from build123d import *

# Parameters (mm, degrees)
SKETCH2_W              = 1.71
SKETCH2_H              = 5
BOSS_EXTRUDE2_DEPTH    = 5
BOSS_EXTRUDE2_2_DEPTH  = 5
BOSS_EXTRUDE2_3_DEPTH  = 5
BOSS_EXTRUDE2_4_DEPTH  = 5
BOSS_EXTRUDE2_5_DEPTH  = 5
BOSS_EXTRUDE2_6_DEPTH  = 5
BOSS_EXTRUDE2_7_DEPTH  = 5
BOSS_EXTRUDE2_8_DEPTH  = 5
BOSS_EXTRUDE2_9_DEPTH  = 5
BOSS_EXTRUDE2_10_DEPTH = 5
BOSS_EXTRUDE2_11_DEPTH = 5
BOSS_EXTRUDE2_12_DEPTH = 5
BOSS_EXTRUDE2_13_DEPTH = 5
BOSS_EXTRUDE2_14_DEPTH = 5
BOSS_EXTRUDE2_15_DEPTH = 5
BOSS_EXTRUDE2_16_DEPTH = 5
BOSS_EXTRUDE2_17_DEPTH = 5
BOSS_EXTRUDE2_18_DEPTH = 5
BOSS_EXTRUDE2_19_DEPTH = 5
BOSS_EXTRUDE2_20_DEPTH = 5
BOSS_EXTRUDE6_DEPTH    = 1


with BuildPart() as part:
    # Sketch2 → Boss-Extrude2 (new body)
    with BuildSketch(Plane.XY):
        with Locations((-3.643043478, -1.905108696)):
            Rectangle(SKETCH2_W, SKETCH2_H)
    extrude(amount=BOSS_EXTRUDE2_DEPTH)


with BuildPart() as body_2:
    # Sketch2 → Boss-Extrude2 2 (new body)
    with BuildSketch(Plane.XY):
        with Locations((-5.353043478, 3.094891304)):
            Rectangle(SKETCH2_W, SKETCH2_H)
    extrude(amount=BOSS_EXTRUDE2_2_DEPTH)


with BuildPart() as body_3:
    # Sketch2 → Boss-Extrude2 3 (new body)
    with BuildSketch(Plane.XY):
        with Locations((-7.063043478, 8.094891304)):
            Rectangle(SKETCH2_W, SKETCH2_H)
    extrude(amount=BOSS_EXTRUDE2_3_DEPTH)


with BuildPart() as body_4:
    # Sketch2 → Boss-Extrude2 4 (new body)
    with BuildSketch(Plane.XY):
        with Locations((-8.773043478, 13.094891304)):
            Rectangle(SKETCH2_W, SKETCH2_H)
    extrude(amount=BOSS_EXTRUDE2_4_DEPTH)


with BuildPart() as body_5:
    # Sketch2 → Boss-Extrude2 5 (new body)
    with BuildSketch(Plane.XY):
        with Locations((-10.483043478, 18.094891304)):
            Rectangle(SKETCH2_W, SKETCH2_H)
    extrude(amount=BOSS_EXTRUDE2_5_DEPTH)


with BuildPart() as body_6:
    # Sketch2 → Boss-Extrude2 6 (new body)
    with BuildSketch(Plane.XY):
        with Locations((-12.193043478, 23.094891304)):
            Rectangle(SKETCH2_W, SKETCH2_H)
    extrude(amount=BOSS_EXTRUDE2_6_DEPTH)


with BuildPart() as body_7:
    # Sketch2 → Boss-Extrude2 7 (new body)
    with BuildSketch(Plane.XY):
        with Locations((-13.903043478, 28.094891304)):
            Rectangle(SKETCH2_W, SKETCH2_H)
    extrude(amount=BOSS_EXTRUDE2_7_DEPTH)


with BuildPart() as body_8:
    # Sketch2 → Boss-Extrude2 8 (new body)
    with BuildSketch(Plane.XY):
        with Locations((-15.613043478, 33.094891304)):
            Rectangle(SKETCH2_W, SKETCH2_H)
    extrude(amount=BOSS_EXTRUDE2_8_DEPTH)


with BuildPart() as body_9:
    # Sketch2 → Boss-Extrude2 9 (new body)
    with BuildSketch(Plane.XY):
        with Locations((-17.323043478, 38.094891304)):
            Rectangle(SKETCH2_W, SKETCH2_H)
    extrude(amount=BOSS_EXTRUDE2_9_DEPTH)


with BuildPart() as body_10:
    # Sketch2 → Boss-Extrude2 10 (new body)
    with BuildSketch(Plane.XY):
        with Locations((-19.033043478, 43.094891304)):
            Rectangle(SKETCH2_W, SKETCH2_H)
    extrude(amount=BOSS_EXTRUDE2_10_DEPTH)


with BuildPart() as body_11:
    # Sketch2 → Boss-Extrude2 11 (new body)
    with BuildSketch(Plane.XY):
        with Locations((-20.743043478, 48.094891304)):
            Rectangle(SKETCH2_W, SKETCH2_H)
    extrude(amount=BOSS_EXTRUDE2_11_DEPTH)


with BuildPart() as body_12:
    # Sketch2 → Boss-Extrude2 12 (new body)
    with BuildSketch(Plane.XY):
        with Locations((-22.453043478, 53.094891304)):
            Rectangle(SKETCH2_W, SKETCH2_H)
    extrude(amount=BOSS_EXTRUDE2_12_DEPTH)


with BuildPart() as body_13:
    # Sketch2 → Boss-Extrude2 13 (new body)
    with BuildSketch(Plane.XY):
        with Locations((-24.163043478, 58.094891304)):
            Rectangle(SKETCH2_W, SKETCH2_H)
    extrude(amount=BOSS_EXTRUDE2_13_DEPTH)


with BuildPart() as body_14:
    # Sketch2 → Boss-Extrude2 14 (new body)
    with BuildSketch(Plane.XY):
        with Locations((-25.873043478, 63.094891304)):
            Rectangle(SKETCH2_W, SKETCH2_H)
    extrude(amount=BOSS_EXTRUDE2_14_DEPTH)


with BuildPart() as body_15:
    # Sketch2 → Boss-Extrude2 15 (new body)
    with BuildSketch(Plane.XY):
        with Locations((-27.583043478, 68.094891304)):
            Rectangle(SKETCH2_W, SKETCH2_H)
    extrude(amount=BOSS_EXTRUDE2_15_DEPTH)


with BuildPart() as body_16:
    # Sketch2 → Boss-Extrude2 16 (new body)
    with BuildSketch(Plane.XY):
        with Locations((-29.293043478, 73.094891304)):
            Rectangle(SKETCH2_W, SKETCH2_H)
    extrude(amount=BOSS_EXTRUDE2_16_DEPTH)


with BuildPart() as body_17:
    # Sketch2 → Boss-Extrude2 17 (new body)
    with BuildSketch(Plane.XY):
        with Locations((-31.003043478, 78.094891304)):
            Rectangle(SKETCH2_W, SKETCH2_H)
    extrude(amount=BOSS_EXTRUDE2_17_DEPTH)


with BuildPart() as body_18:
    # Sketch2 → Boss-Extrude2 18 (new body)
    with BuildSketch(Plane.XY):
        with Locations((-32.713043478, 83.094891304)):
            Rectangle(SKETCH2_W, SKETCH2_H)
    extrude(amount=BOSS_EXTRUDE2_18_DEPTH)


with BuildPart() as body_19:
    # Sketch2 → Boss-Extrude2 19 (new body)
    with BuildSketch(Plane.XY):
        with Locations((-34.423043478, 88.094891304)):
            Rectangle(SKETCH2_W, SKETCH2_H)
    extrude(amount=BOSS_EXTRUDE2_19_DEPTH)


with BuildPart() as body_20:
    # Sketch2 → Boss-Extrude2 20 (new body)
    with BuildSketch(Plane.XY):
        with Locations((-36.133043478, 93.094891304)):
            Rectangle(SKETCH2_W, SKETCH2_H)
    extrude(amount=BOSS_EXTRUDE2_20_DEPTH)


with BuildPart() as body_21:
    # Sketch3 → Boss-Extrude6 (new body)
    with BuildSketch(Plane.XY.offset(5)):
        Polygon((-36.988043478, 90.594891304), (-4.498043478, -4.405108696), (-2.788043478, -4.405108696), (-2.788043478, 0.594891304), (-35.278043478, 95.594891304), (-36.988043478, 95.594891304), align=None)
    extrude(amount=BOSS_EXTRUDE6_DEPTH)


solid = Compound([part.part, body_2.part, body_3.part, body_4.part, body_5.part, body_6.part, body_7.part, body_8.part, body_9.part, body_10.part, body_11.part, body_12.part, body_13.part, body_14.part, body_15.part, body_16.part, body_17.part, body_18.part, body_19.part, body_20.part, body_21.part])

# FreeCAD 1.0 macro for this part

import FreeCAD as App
import Part
import Sketcher
from FreeCAD import Vector
Q = App.Units.Quantity

doc = App.newDocument("Part")
body = doc.addObject("PartDesign::Body", "Body")

sketch1 = body.newObject("Sketcher::SketchObject", "Sketch")
sketch1.AttachmentSupport = (doc.getObject("XY_Plane"), [""])
sketch1.MapMode = "FlatFace"
sketch1.addGeometry(Part.LineSegment(Vector(-4.5, 0.6, 0), Vector(-4.5, -4.4, 0)), False)
sketch1.addGeometry(Part.LineSegment(Vector(-4.5, -4.4, 0), Vector(-2.8, -4.4, 0)), False)
sketch1.addGeometry(Part.LineSegment(Vector(-2.8, -4.4, 0), Vector(-2.8, 0.6, 0)), False)
sketch1.addGeometry(Part.LineSegment(Vector(-2.8, 0.6, 0), Vector(-4.5, 0.6, 0)), False)
sketch1.addConstraint(Sketcher.Constraint("Coincident", 0, 2, 1, 1))
sketch1.addConstraint(Sketcher.Constraint("Coincident", 1, 2, 2, 1))
sketch1.addConstraint(Sketcher.Constraint("Coincident", 2, 2, 3, 1))
sketch1.addConstraint(Sketcher.Constraint("Coincident", 3, 2, 0, 1))
sketch1.addConstraint(Sketcher.Constraint("Vertical", 0))
sketch1.addConstraint(Sketcher.Constraint("Horizontal", 1))
sketch1.addConstraint(Sketcher.Constraint("Vertical", 2))
sketch1.addConstraint(Sketcher.Constraint("Horizontal", 3))
sketch1.addConstraint(Sketcher.Constraint("DistanceY", 0, 2, 0, 1, Q("5 mm")))
sketch1.addConstraint(Sketcher.Constraint("DistanceX", 1, 1, 1, 2, Q("1.71 mm")))
sketch1.addConstraint(Sketcher.Constraint("DistanceY", 0, 2, -1, 1, Q("4.405109 mm")))
sketch1.addConstraint(Sketcher.Constraint("DistanceX", 0, 2, -1, 1, Q("4.498043 mm")))
pad1 = body.newObject("PartDesign::Pad", "Pad")
pad1.Profile = sketch1
pad1.Length = 5
body2 = doc.addObject("PartDesign::Body", "Body001")

sketch2 = body2.newObject("Sketcher::SketchObject", "Sketch001")
sketch2.AttachmentSupport = (doc.getObject("XY_Plane001"), [""])
sketch2.MapMode = "FlatFace"
sketch2.addGeometry(Part.LineSegment(Vector(-6.2, 5.6, 0), Vector(-6.2, 0.6, 0)), False)
sketch2.addGeometry(Part.LineSegment(Vector(-6.2, 0.6, 0), Vector(-4.5, 0.6, 0)), False)
sketch2.addGeometry(Part.LineSegment(Vector(-4.5, 0.6, 0), Vector(-4.5, 5.6, 0)), False)
sketch2.addGeometry(Part.LineSegment(Vector(-4.5, 5.6, 0), Vector(-6.2, 5.6, 0)), False)
sketch2.addConstraint(Sketcher.Constraint("Coincident", 0, 2, 1, 1))
sketch2.addConstraint(Sketcher.Constraint("Coincident", 1, 2, 2, 1))
sketch2.addConstraint(Sketcher.Constraint("Coincident", 2, 2, 3, 1))
sketch2.addConstraint(Sketcher.Constraint("Coincident", 3, 2, 0, 1))
sketch2.addConstraint(Sketcher.Constraint("Vertical", 0))
sketch2.addConstraint(Sketcher.Constraint("Horizontal", 1))
sketch2.addConstraint(Sketcher.Constraint("Vertical", 2))
sketch2.addConstraint(Sketcher.Constraint("Horizontal", 3))
sketch2.addConstraint(Sketcher.Constraint("DistanceY", 0, 2, 0, 1, Q("5 mm")))
sketch2.addConstraint(Sketcher.Constraint("DistanceX", 1, 1, 1, 2, Q("1.71 mm")))
sketch2.addConstraint(Sketcher.Constraint("DistanceY", -1, 1, 0, 2, Q("0.594891 mm")))
sketch2.addConstraint(Sketcher.Constraint("DistanceX", 0, 2, -1, 1, Q("6.208043 mm")))
pad2 = body2.newObject("PartDesign::Pad", "Pad001")
pad2.Profile = sketch2
pad2.Length = 5
body3 = doc.addObject("PartDesign::Body", "Body002")

sketch3 = body3.newObject("Sketcher::SketchObject", "Sketch002")
sketch3.AttachmentSupport = (doc.getObject("XY_Plane002"), [""])
sketch3.MapMode = "FlatFace"
sketch3.addGeometry(Part.LineSegment(Vector(-7.9, 10.6, 0), Vector(-7.9, 5.6, 0)), False)
sketch3.addGeometry(Part.LineSegment(Vector(-7.9, 5.6, 0), Vector(-6.2, 5.6, 0)), False)
sketch3.addGeometry(Part.LineSegment(Vector(-6.2, 5.6, 0), Vector(-6.2, 10.6, 0)), False)
sketch3.addGeometry(Part.LineSegment(Vector(-6.2, 10.6, 0), Vector(-7.9, 10.6, 0)), False)
sketch3.addConstraint(Sketcher.Constraint("Coincident", 0, 2, 1, 1))
sketch3.addConstraint(Sketcher.Constraint("Coincident", 1, 2, 2, 1))
sketch3.addConstraint(Sketcher.Constraint("Coincident", 2, 2, 3, 1))
sketch3.addConstraint(Sketcher.Constraint("Coincident", 3, 2, 0, 1))
sketch3.addConstraint(Sketcher.Constraint("Vertical", 0))
sketch3.addConstraint(Sketcher.Constraint("Horizontal", 1))
sketch3.addConstraint(Sketcher.Constraint("Vertical", 2))
sketch3.addConstraint(Sketcher.Constraint("Horizontal", 3))
sketch3.addConstraint(Sketcher.Constraint("DistanceY", 0, 2, 0, 1, Q("5 mm")))
sketch3.addConstraint(Sketcher.Constraint("DistanceX", 1, 1, 1, 2, Q("1.71 mm")))
sketch3.addConstraint(Sketcher.Constraint("DistanceY", -1, 1, 0, 2, Q("5.594891 mm")))
sketch3.addConstraint(Sketcher.Constraint("DistanceX", 0, 2, -1, 1, Q("7.918043 mm")))
pad3 = body3.newObject("PartDesign::Pad", "Pad002")
pad3.Profile = sketch3
pad3.Length = 5
body4 = doc.addObject("PartDesign::Body", "Body003")

sketch4 = body4.newObject("Sketcher::SketchObject", "Sketch003")
sketch4.AttachmentSupport = (doc.getObject("XY_Plane003"), [""])
sketch4.MapMode = "FlatFace"
sketch4.addGeometry(Part.LineSegment(Vector(-9.6, 15.6, 0), Vector(-9.6, 10.6, 0)), False)
sketch4.addGeometry(Part.LineSegment(Vector(-9.6, 10.6, 0), Vector(-7.9, 10.6, 0)), False)
sketch4.addGeometry(Part.LineSegment(Vector(-7.9, 10.6, 0), Vector(-7.9, 15.6, 0)), False)
sketch4.addGeometry(Part.LineSegment(Vector(-7.9, 15.6, 0), Vector(-9.6, 15.6, 0)), False)
sketch4.addConstraint(Sketcher.Constraint("Coincident", 0, 2, 1, 1))
sketch4.addConstraint(Sketcher.Constraint("Coincident", 1, 2, 2, 1))
sketch4.addConstraint(Sketcher.Constraint("Coincident", 2, 2, 3, 1))
sketch4.addConstraint(Sketcher.Constraint("Coincident", 3, 2, 0, 1))
sketch4.addConstraint(Sketcher.Constraint("Vertical", 0))
sketch4.addConstraint(Sketcher.Constraint("Horizontal", 1))
sketch4.addConstraint(Sketcher.Constraint("Vertical", 2))
sketch4.addConstraint(Sketcher.Constraint("Horizontal", 3))
sketch4.addConstraint(Sketcher.Constraint("DistanceY", 0, 2, 0, 1, Q("5 mm")))
sketch4.addConstraint(Sketcher.Constraint("DistanceX", 1, 1, 1, 2, Q("1.71 mm")))
sketch4.addConstraint(Sketcher.Constraint("DistanceY", -1, 1, 0, 2, Q("10.594891 mm")))
sketch4.addConstraint(Sketcher.Constraint("DistanceX", 0, 2, -1, 1, Q("9.628043 mm")))
pad4 = body4.newObject("PartDesign::Pad", "Pad003")
pad4.Profile = sketch4
pad4.Length = 5
body5 = doc.addObject("PartDesign::Body", "Body004")

sketch5 = body5.newObject("Sketcher::SketchObject", "Sketch004")
sketch5.AttachmentSupport = (doc.getObject("XY_Plane004"), [""])
sketch5.MapMode = "FlatFace"
sketch5.addGeometry(Part.LineSegment(Vector(-11.3, 20.6, 0), Vector(-11.3, 15.6, 0)), False)
sketch5.addGeometry(Part.LineSegment(Vector(-11.3, 15.6, 0), Vector(-9.6, 15.6, 0)), False)
sketch5.addGeometry(Part.LineSegment(Vector(-9.6, 15.6, 0), Vector(-9.6, 20.6, 0)), False)
sketch5.addGeometry(Part.LineSegment(Vector(-9.6, 20.6, 0), Vector(-11.3, 20.6, 0)), False)
sketch5.addConstraint(Sketcher.Constraint("Coincident", 0, 2, 1, 1))
sketch5.addConstraint(Sketcher.Constraint("Coincident", 1, 2, 2, 1))
sketch5.addConstraint(Sketcher.Constraint("Coincident", 2, 2, 3, 1))
sketch5.addConstraint(Sketcher.Constraint("Coincident", 3, 2, 0, 1))
sketch5.addConstraint(Sketcher.Constraint("Vertical", 0))
sketch5.addConstraint(Sketcher.Constraint("Horizontal", 1))
sketch5.addConstraint(Sketcher.Constraint("Vertical", 2))
sketch5.addConstraint(Sketcher.Constraint("Horizontal", 3))
sketch5.addConstraint(Sketcher.Constraint("DistanceY", 0, 2, 0, 1, Q("5 mm")))
sketch5.addConstraint(Sketcher.Constraint("DistanceX", 1, 1, 1, 2, Q("1.71 mm")))
sketch5.addConstraint(Sketcher.Constraint("DistanceY", -1, 1, 0, 2, Q("15.594891 mm")))
sketch5.addConstraint(Sketcher.Constraint("DistanceX", 0, 2, -1, 1, Q("11.338043 mm")))
pad5 = body5.newObject("PartDesign::Pad", "Pad004")
pad5.Profile = sketch5
pad5.Length = 5
body6 = doc.addObject("PartDesign::Body", "Body005")

sketch6 = body6.newObject("Sketcher::SketchObject", "Sketch005")
sketch6.AttachmentSupport = (doc.getObject("XY_Plane005"), [""])
sketch6.MapMode = "FlatFace"
sketch6.addGeometry(Part.LineSegment(Vector(-13, 25.6, 0), Vector(-13, 20.6, 0)), False)
sketch6.addGeometry(Part.LineSegment(Vector(-13, 20.6, 0), Vector(-11.3, 20.6, 0)), False)
sketch6.addGeometry(Part.LineSegment(Vector(-11.3, 20.6, 0), Vector(-11.3, 25.6, 0)), False)
sketch6.addGeometry(Part.LineSegment(Vector(-11.3, 25.6, 0), Vector(-13, 25.6, 0)), False)
sketch6.addConstraint(Sketcher.Constraint("Coincident", 0, 2, 1, 1))
sketch6.addConstraint(Sketcher.Constraint("Coincident", 1, 2, 2, 1))
sketch6.addConstraint(Sketcher.Constraint("Coincident", 2, 2, 3, 1))
sketch6.addConstraint(Sketcher.Constraint("Coincident", 3, 2, 0, 1))
sketch6.addConstraint(Sketcher.Constraint("Vertical", 0))
sketch6.addConstraint(Sketcher.Constraint("Horizontal", 1))
sketch6.addConstraint(Sketcher.Constraint("Vertical", 2))
sketch6.addConstraint(Sketcher.Constraint("Horizontal", 3))
sketch6.addConstraint(Sketcher.Constraint("DistanceY", 0, 2, 0, 1, Q("5 mm")))
sketch6.addConstraint(Sketcher.Constraint("DistanceX", 1, 1, 1, 2, Q("1.71 mm")))
sketch6.addConstraint(Sketcher.Constraint("DistanceY", -1, 1, 0, 2, Q("20.594891 mm")))
sketch6.addConstraint(Sketcher.Constraint("DistanceX", 0, 2, -1, 1, Q("13.048043 mm")))
pad6 = body6.newObject("PartDesign::Pad", "Pad005")
pad6.Profile = sketch6
pad6.Length = 5
body7 = doc.addObject("PartDesign::Body", "Body006")

sketch7 = body7.newObject("Sketcher::SketchObject", "Sketch006")
sketch7.AttachmentSupport = (doc.getObject("XY_Plane006"), [""])
sketch7.MapMode = "FlatFace"
sketch7.addGeometry(Part.LineSegment(Vector(-14.8, 30.6, 0), Vector(-14.8, 25.6, 0)), False)
sketch7.addGeometry(Part.LineSegment(Vector(-14.8, 25.6, 0), Vector(-13, 25.6, 0)), False)
sketch7.addGeometry(Part.LineSegment(Vector(-13, 25.6, 0), Vector(-13, 30.6, 0)), False)
sketch7.addGeometry(Part.LineSegment(Vector(-13, 30.6, 0), Vector(-14.8, 30.6, 0)), False)
sketch7.addConstraint(Sketcher.Constraint("Coincident", 0, 2, 1, 1))
sketch7.addConstraint(Sketcher.Constraint("Coincident", 1, 2, 2, 1))
sketch7.addConstraint(Sketcher.Constraint("Coincident", 2, 2, 3, 1))
sketch7.addConstraint(Sketcher.Constraint("Coincident", 3, 2, 0, 1))
sketch7.addConstraint(Sketcher.Constraint("Vertical", 0))
sketch7.addConstraint(Sketcher.Constraint("Horizontal", 1))
sketch7.addConstraint(Sketcher.Constraint("Vertical", 2))
sketch7.addConstraint(Sketcher.Constraint("Horizontal", 3))
sketch7.addConstraint(Sketcher.Constraint("DistanceY", 0, 2, 0, 1, Q("5 mm")))
sketch7.addConstraint(Sketcher.Constraint("DistanceX", 1, 1, 1, 2, Q("1.71 mm")))
sketch7.addConstraint(Sketcher.Constraint("DistanceY", -1, 1, 0, 2, Q("25.594891 mm")))
sketch7.addConstraint(Sketcher.Constraint("DistanceX", 0, 2, -1, 1, Q("14.758043 mm")))
pad7 = body7.newObject("PartDesign::Pad", "Pad006")
pad7.Profile = sketch7
pad7.Length = 5
body8 = doc.addObject("PartDesign::Body", "Body007")

sketch8 = body8.newObject("Sketcher::SketchObject", "Sketch007")
sketch8.AttachmentSupport = (doc.getObject("XY_Plane007"), [""])
sketch8.MapMode = "FlatFace"
sketch8.addGeometry(Part.LineSegment(Vector(-16.5, 35.6, 0), Vector(-16.5, 30.6, 0)), False)
sketch8.addGeometry(Part.LineSegment(Vector(-16.5, 30.6, 0), Vector(-14.8, 30.6, 0)), False)
sketch8.addGeometry(Part.LineSegment(Vector(-14.8, 30.6, 0), Vector(-14.8, 35.6, 0)), False)
sketch8.addGeometry(Part.LineSegment(Vector(-14.8, 35.6, 0), Vector(-16.5, 35.6, 0)), False)
sketch8.addConstraint(Sketcher.Constraint("Coincident", 0, 2, 1, 1))
sketch8.addConstraint(Sketcher.Constraint("Coincident", 1, 2, 2, 1))
sketch8.addConstraint(Sketcher.Constraint("Coincident", 2, 2, 3, 1))
sketch8.addConstraint(Sketcher.Constraint("Coincident", 3, 2, 0, 1))
sketch8.addConstraint(Sketcher.Constraint("Vertical", 0))
sketch8.addConstraint(Sketcher.Constraint("Horizontal", 1))
sketch8.addConstraint(Sketcher.Constraint("Vertical", 2))
sketch8.addConstraint(Sketcher.Constraint("Horizontal", 3))
sketch8.addConstraint(Sketcher.Constraint("DistanceY", 0, 2, 0, 1, Q("5 mm")))
sketch8.addConstraint(Sketcher.Constraint("DistanceX", 1, 1, 1, 2, Q("1.71 mm")))
sketch8.addConstraint(Sketcher.Constraint("DistanceY", -1, 1, 0, 2, Q("30.594891 mm")))
sketch8.addConstraint(Sketcher.Constraint("DistanceX", 0, 2, -1, 1, Q("16.468043 mm")))
pad8 = body8.newObject("PartDesign::Pad", "Pad007")
pad8.Profile = sketch8
pad8.Length = 5
body9 = doc.addObject("PartDesign::Body", "Body008")

sketch9 = body9.newObject("Sketcher::SketchObject", "Sketch008")
sketch9.AttachmentSupport = (doc.getObject("XY_Plane008"), [""])
sketch9.MapMode = "FlatFace"
sketch9.addGeometry(Part.LineSegment(Vector(-18.2, 40.6, 0), Vector(-18.2, 35.6, 0)), False)
sketch9.addGeometry(Part.LineSegment(Vector(-18.2, 35.6, 0), Vector(-16.5, 35.6, 0)), False)
sketch9.addGeometry(Part.LineSegment(Vector(-16.5, 35.6, 0), Vector(-16.5, 40.6, 0)), False)
sketch9.addGeometry(Part.LineSegment(Vector(-16.5, 40.6, 0), Vector(-18.2, 40.6, 0)), False)
sketch9.addConstraint(Sketcher.Constraint("Coincident", 0, 2, 1, 1))
sketch9.addConstraint(Sketcher.Constraint("Coincident", 1, 2, 2, 1))
sketch9.addConstraint(Sketcher.Constraint("Coincident", 2, 2, 3, 1))
sketch9.addConstraint(Sketcher.Constraint("Coincident", 3, 2, 0, 1))
sketch9.addConstraint(Sketcher.Constraint("Vertical", 0))
sketch9.addConstraint(Sketcher.Constraint("Horizontal", 1))
sketch9.addConstraint(Sketcher.Constraint("Vertical", 2))
sketch9.addConstraint(Sketcher.Constraint("Horizontal", 3))
sketch9.addConstraint(Sketcher.Constraint("DistanceY", 0, 2, 0, 1, Q("5 mm")))
sketch9.addConstraint(Sketcher.Constraint("DistanceX", 1, 1, 1, 2, Q("1.71 mm")))
sketch9.addConstraint(Sketcher.Constraint("DistanceY", -1, 1, 0, 2, Q("35.594891 mm")))
sketch9.addConstraint(Sketcher.Constraint("DistanceX", 0, 2, -1, 1, Q("18.178043 mm")))
pad9 = body9.newObject("PartDesign::Pad", "Pad008")
pad9.Profile = sketch9
pad9.Length = 5
body10 = doc.addObject("PartDesign::Body", "Body009")

sketch10 = body10.newObject("Sketcher::SketchObject", "Sketch009")
sketch10.AttachmentSupport = (doc.getObject("XY_Plane009"), [""])
sketch10.MapMode = "FlatFace"
sketch10.addGeometry(Part.LineSegment(Vector(-19.9, 45.6, 0), Vector(-19.9, 40.6, 0)), False)
sketch10.addGeometry(Part.LineSegment(Vector(-19.9, 40.6, 0), Vector(-18.2, 40.6, 0)), False)
sketch10.addGeometry(Part.LineSegment(Vector(-18.2, 40.6, 0), Vector(-18.2, 45.6, 0)), False)
sketch10.addGeometry(Part.LineSegment(Vector(-18.2, 45.6, 0), Vector(-19.9, 45.6, 0)), False)
sketch10.addConstraint(Sketcher.Constraint("Coincident", 0, 2, 1, 1))
sketch10.addConstraint(Sketcher.Constraint("Coincident", 1, 2, 2, 1))
sketch10.addConstraint(Sketcher.Constraint("Coincident", 2, 2, 3, 1))
sketch10.addConstraint(Sketcher.Constraint("Coincident", 3, 2, 0, 1))
sketch10.addConstraint(Sketcher.Constraint("Vertical", 0))
sketch10.addConstraint(Sketcher.Constraint("Horizontal", 1))
sketch10.addConstraint(Sketcher.Constraint("Vertical", 2))
sketch10.addConstraint(Sketcher.Constraint("Horizontal", 3))
sketch10.addConstraint(Sketcher.Constraint("DistanceY", 0, 2, 0, 1, Q("5 mm")))
sketch10.addConstraint(Sketcher.Constraint("DistanceX", 1, 1, 1, 2, Q("1.71 mm")))
sketch10.addConstraint(Sketcher.Constraint("DistanceY", -1, 1, 0, 2, Q("40.594891 mm")))
sketch10.addConstraint(Sketcher.Constraint("DistanceX", 0, 2, -1, 1, Q("19.888043 mm")))
pad10 = body10.newObject("PartDesign::Pad", "Pad009")
pad10.Profile = sketch10
pad10.Length = 5
body11 = doc.addObject("PartDesign::Body", "Body010")

sketch11 = body11.newObject("Sketcher::SketchObject", "Sketch010")
sketch11.AttachmentSupport = (doc.getObject("XY_Plane010"), [""])
sketch11.MapMode = "FlatFace"
sketch11.addGeometry(Part.LineSegment(Vector(-21.6, 50.6, 0), Vector(-21.6, 45.6, 0)), False)
sketch11.addGeometry(Part.LineSegment(Vector(-21.6, 45.6, 0), Vector(-19.9, 45.6, 0)), False)
sketch11.addGeometry(Part.LineSegment(Vector(-19.9, 45.6, 0), Vector(-19.9, 50.6, 0)), False)
sketch11.addGeometry(Part.LineSegment(Vector(-19.9, 50.6, 0), Vector(-21.6, 50.6, 0)), False)
sketch11.addConstraint(Sketcher.Constraint("Coincident", 0, 2, 1, 1))
sketch11.addConstraint(Sketcher.Constraint("Coincident", 1, 2, 2, 1))
sketch11.addConstraint(Sketcher.Constraint("Coincident", 2, 2, 3, 1))
sketch11.addConstraint(Sketcher.Constraint("Coincident", 3, 2, 0, 1))
sketch11.addConstraint(Sketcher.Constraint("Vertical", 0))
sketch11.addConstraint(Sketcher.Constraint("Horizontal", 1))
sketch11.addConstraint(Sketcher.Constraint("Vertical", 2))
sketch11.addConstraint(Sketcher.Constraint("Horizontal", 3))
sketch11.addConstraint(Sketcher.Constraint("DistanceY", 0, 2, 0, 1, Q("5 mm")))
sketch11.addConstraint(Sketcher.Constraint("DistanceX", 1, 1, 1, 2, Q("1.71 mm")))
sketch11.addConstraint(Sketcher.Constraint("DistanceY", -1, 1, 0, 2, Q("45.594891 mm")))
sketch11.addConstraint(Sketcher.Constraint("DistanceX", 0, 2, -1, 1, Q("21.598043 mm")))
pad11 = body11.newObject("PartDesign::Pad", "Pad010")
pad11.Profile = sketch11
pad11.Length = 5
body12 = doc.addObject("PartDesign::Body", "Body011")

sketch12 = body12.newObject("Sketcher::SketchObject", "Sketch011")
sketch12.AttachmentSupport = (doc.getObject("XY_Plane011"), [""])
sketch12.MapMode = "FlatFace"
sketch12.addGeometry(Part.LineSegment(Vector(-23.3, 55.6, 0), Vector(-23.3, 50.6, 0)), False)
sketch12.addGeometry(Part.LineSegment(Vector(-23.3, 50.6, 0), Vector(-21.6, 50.6, 0)), False)
sketch12.addGeometry(Part.LineSegment(Vector(-21.6, 50.6, 0), Vector(-21.6, 55.6, 0)), False)
sketch12.addGeometry(Part.LineSegment(Vector(-21.6, 55.6, 0), Vector(-23.3, 55.6, 0)), False)
sketch12.addConstraint(Sketcher.Constraint("Coincident", 0, 2, 1, 1))
sketch12.addConstraint(Sketcher.Constraint("Coincident", 1, 2, 2, 1))
sketch12.addConstraint(Sketcher.Constraint("Coincident", 2, 2, 3, 1))
sketch12.addConstraint(Sketcher.Constraint("Coincident", 3, 2, 0, 1))
sketch12.addConstraint(Sketcher.Constraint("Vertical", 0))
sketch12.addConstraint(Sketcher.Constraint("Horizontal", 1))
sketch12.addConstraint(Sketcher.Constraint("Vertical", 2))
sketch12.addConstraint(Sketcher.Constraint("Horizontal", 3))
sketch12.addConstraint(Sketcher.Constraint("DistanceY", 0, 2, 0, 1, Q("5 mm")))
sketch12.addConstraint(Sketcher.Constraint("DistanceX", 1, 1, 1, 2, Q("1.71 mm")))
sketch12.addConstraint(Sketcher.Constraint("DistanceY", -1, 1, 0, 2, Q("50.594891 mm")))
sketch12.addConstraint(Sketcher.Constraint("DistanceX", 0, 2, -1, 1, Q("23.308043 mm")))
pad12 = body12.newObject("PartDesign::Pad", "Pad011")
pad12.Profile = sketch12
pad12.Length = 5
body13 = doc.addObject("PartDesign::Body", "Body012")

sketch13 = body13.newObject("Sketcher::SketchObject", "Sketch012")
sketch13.AttachmentSupport = (doc.getObject("XY_Plane012"), [""])
sketch13.MapMode = "FlatFace"
sketch13.addGeometry(Part.LineSegment(Vector(-25, 60.6, 0), Vector(-25, 55.6, 0)), False)
sketch13.addGeometry(Part.LineSegment(Vector(-25, 55.6, 0), Vector(-23.3, 55.6, 0)), False)
sketch13.addGeometry(Part.LineSegment(Vector(-23.3, 55.6, 0), Vector(-23.3, 60.6, 0)), False)
sketch13.addGeometry(Part.LineSegment(Vector(-23.3, 60.6, 0), Vector(-25, 60.6, 0)), False)
sketch13.addConstraint(Sketcher.Constraint("Coincident", 0, 2, 1, 1))
sketch13.addConstraint(Sketcher.Constraint("Coincident", 1, 2, 2, 1))
sketch13.addConstraint(Sketcher.Constraint("Coincident", 2, 2, 3, 1))
sketch13.addConstraint(Sketcher.Constraint("Coincident", 3, 2, 0, 1))
sketch13.addConstraint(Sketcher.Constraint("Vertical", 0))
sketch13.addConstraint(Sketcher.Constraint("Horizontal", 1))
sketch13.addConstraint(Sketcher.Constraint("Vertical", 2))
sketch13.addConstraint(Sketcher.Constraint("Horizontal", 3))
sketch13.addConstraint(Sketcher.Constraint("DistanceY", 0, 2, 0, 1, Q("5 mm")))
sketch13.addConstraint(Sketcher.Constraint("DistanceX", 1, 1, 1, 2, Q("1.71 mm")))
sketch13.addConstraint(Sketcher.Constraint("DistanceY", -1, 1, 0, 2, Q("55.594891 mm")))
sketch13.addConstraint(Sketcher.Constraint("DistanceX", 0, 2, -1, 1, Q("25.018043 mm")))
pad13 = body13.newObject("PartDesign::Pad", "Pad012")
pad13.Profile = sketch13
pad13.Length = 5
body14 = doc.addObject("PartDesign::Body", "Body013")

sketch14 = body14.newObject("Sketcher::SketchObject", "Sketch013")
sketch14.AttachmentSupport = (doc.getObject("XY_Plane013"), [""])
sketch14.MapMode = "FlatFace"
sketch14.addGeometry(Part.LineSegment(Vector(-26.7, 65.6, 0), Vector(-26.7, 60.6, 0)), False)
sketch14.addGeometry(Part.LineSegment(Vector(-26.7, 60.6, 0), Vector(-25, 60.6, 0)), False)
sketch14.addGeometry(Part.LineSegment(Vector(-25, 60.6, 0), Vector(-25, 65.6, 0)), False)
sketch14.addGeometry(Part.LineSegment(Vector(-25, 65.6, 0), Vector(-26.7, 65.6, 0)), False)
sketch14.addConstraint(Sketcher.Constraint("Coincident", 0, 2, 1, 1))
sketch14.addConstraint(Sketcher.Constraint("Coincident", 1, 2, 2, 1))
sketch14.addConstraint(Sketcher.Constraint("Coincident", 2, 2, 3, 1))
sketch14.addConstraint(Sketcher.Constraint("Coincident", 3, 2, 0, 1))
sketch14.addConstraint(Sketcher.Constraint("Vertical", 0))
sketch14.addConstraint(Sketcher.Constraint("Horizontal", 1))
sketch14.addConstraint(Sketcher.Constraint("Vertical", 2))
sketch14.addConstraint(Sketcher.Constraint("Horizontal", 3))
sketch14.addConstraint(Sketcher.Constraint("DistanceY", 0, 2, 0, 1, Q("5 mm")))
sketch14.addConstraint(Sketcher.Constraint("DistanceX", 1, 1, 1, 2, Q("1.71 mm")))
sketch14.addConstraint(Sketcher.Constraint("DistanceY", -1, 1, 0, 2, Q("60.594891 mm")))
sketch14.addConstraint(Sketcher.Constraint("DistanceX", 0, 2, -1, 1, Q("26.728043 mm")))
pad14 = body14.newObject("PartDesign::Pad", "Pad013")
pad14.Profile = sketch14
pad14.Length = 5
body15 = doc.addObject("PartDesign::Body", "Body014")

sketch15 = body15.newObject("Sketcher::SketchObject", "Sketch014")
sketch15.AttachmentSupport = (doc.getObject("XY_Plane014"), [""])
sketch15.MapMode = "FlatFace"
sketch15.addGeometry(Part.LineSegment(Vector(-28.4, 70.6, 0), Vector(-28.4, 65.6, 0)), False)
sketch15.addGeometry(Part.LineSegment(Vector(-28.4, 65.6, 0), Vector(-26.7, 65.6, 0)), False)
sketch15.addGeometry(Part.LineSegment(Vector(-26.7, 65.6, 0), Vector(-26.7, 70.6, 0)), False)
sketch15.addGeometry(Part.LineSegment(Vector(-26.7, 70.6, 0), Vector(-28.4, 70.6, 0)), False)
sketch15.addConstraint(Sketcher.Constraint("Coincident", 0, 2, 1, 1))
sketch15.addConstraint(Sketcher.Constraint("Coincident", 1, 2, 2, 1))
sketch15.addConstraint(Sketcher.Constraint("Coincident", 2, 2, 3, 1))
sketch15.addConstraint(Sketcher.Constraint("Coincident", 3, 2, 0, 1))
sketch15.addConstraint(Sketcher.Constraint("Vertical", 0))
sketch15.addConstraint(Sketcher.Constraint("Horizontal", 1))
sketch15.addConstraint(Sketcher.Constraint("Vertical", 2))
sketch15.addConstraint(Sketcher.Constraint("Horizontal", 3))
sketch15.addConstraint(Sketcher.Constraint("DistanceY", 0, 2, 0, 1, Q("5 mm")))
sketch15.addConstraint(Sketcher.Constraint("DistanceX", 1, 1, 1, 2, Q("1.71 mm")))
sketch15.addConstraint(Sketcher.Constraint("DistanceY", -1, 1, 0, 2, Q("65.594891 mm")))
sketch15.addConstraint(Sketcher.Constraint("DistanceX", 0, 2, -1, 1, Q("28.438043 mm")))
pad15 = body15.newObject("PartDesign::Pad", "Pad014")
pad15.Profile = sketch15
pad15.Length = 5
body16 = doc.addObject("PartDesign::Body", "Body015")

sketch16 = body16.newObject("Sketcher::SketchObject", "Sketch015")
sketch16.AttachmentSupport = (doc.getObject("XY_Plane015"), [""])
sketch16.MapMode = "FlatFace"
sketch16.addGeometry(Part.LineSegment(Vector(-30.1, 75.6, 0), Vector(-30.1, 70.6, 0)), False)
sketch16.addGeometry(Part.LineSegment(Vector(-30.1, 70.6, 0), Vector(-28.4, 70.6, 0)), False)
sketch16.addGeometry(Part.LineSegment(Vector(-28.4, 70.6, 0), Vector(-28.4, 75.6, 0)), False)
sketch16.addGeometry(Part.LineSegment(Vector(-28.4, 75.6, 0), Vector(-30.1, 75.6, 0)), False)
sketch16.addConstraint(Sketcher.Constraint("Coincident", 0, 2, 1, 1))
sketch16.addConstraint(Sketcher.Constraint("Coincident", 1, 2, 2, 1))
sketch16.addConstraint(Sketcher.Constraint("Coincident", 2, 2, 3, 1))
sketch16.addConstraint(Sketcher.Constraint("Coincident", 3, 2, 0, 1))
sketch16.addConstraint(Sketcher.Constraint("Vertical", 0))
sketch16.addConstraint(Sketcher.Constraint("Horizontal", 1))
sketch16.addConstraint(Sketcher.Constraint("Vertical", 2))
sketch16.addConstraint(Sketcher.Constraint("Horizontal", 3))
sketch16.addConstraint(Sketcher.Constraint("DistanceY", 0, 2, 0, 1, Q("5 mm")))
sketch16.addConstraint(Sketcher.Constraint("DistanceX", 1, 1, 1, 2, Q("1.71 mm")))
sketch16.addConstraint(Sketcher.Constraint("DistanceY", -1, 1, 0, 2, Q("70.594891 mm")))
sketch16.addConstraint(Sketcher.Constraint("DistanceX", 0, 2, -1, 1, Q("30.148043 mm")))
pad16 = body16.newObject("PartDesign::Pad", "Pad015")
pad16.Profile = sketch16
pad16.Length = 5
body17 = doc.addObject("PartDesign::Body", "Body016")

sketch17 = body17.newObject("Sketcher::SketchObject", "Sketch016")
sketch17.AttachmentSupport = (doc.getObject("XY_Plane016"), [""])
sketch17.MapMode = "FlatFace"
sketch17.addGeometry(Part.LineSegment(Vector(-31.9, 80.6, 0), Vector(-31.9, 75.6, 0)), False)
sketch17.addGeometry(Part.LineSegment(Vector(-31.9, 75.6, 0), Vector(-30.1, 75.6, 0)), False)
sketch17.addGeometry(Part.LineSegment(Vector(-30.1, 75.6, 0), Vector(-30.1, 80.6, 0)), False)
sketch17.addGeometry(Part.LineSegment(Vector(-30.1, 80.6, 0), Vector(-31.9, 80.6, 0)), False)
sketch17.addConstraint(Sketcher.Constraint("Coincident", 0, 2, 1, 1))
sketch17.addConstraint(Sketcher.Constraint("Coincident", 1, 2, 2, 1))
sketch17.addConstraint(Sketcher.Constraint("Coincident", 2, 2, 3, 1))
sketch17.addConstraint(Sketcher.Constraint("Coincident", 3, 2, 0, 1))
sketch17.addConstraint(Sketcher.Constraint("Vertical", 0))
sketch17.addConstraint(Sketcher.Constraint("Horizontal", 1))
sketch17.addConstraint(Sketcher.Constraint("Vertical", 2))
sketch17.addConstraint(Sketcher.Constraint("Horizontal", 3))
sketch17.addConstraint(Sketcher.Constraint("DistanceY", 0, 2, 0, 1, Q("5 mm")))
sketch17.addConstraint(Sketcher.Constraint("DistanceX", 1, 1, 1, 2, Q("1.71 mm")))
sketch17.addConstraint(Sketcher.Constraint("DistanceY", -1, 1, 0, 2, Q("75.594891 mm")))
sketch17.addConstraint(Sketcher.Constraint("DistanceX", 0, 2, -1, 1, Q("31.858043 mm")))
pad17 = body17.newObject("PartDesign::Pad", "Pad016")
pad17.Profile = sketch17
pad17.Length = 5
body18 = doc.addObject("PartDesign::Body", "Body017")

sketch18 = body18.newObject("Sketcher::SketchObject", "Sketch017")
sketch18.AttachmentSupport = (doc.getObject("XY_Plane017"), [""])
sketch18.MapMode = "FlatFace"
sketch18.addGeometry(Part.LineSegment(Vector(-33.6, 85.6, 0), Vector(-33.6, 80.6, 0)), False)
sketch18.addGeometry(Part.LineSegment(Vector(-33.6, 80.6, 0), Vector(-31.9, 80.6, 0)), False)
sketch18.addGeometry(Part.LineSegment(Vector(-31.9, 80.6, 0), Vector(-31.9, 85.6, 0)), False)
sketch18.addGeometry(Part.LineSegment(Vector(-31.9, 85.6, 0), Vector(-33.6, 85.6, 0)), False)
sketch18.addConstraint(Sketcher.Constraint("Coincident", 0, 2, 1, 1))
sketch18.addConstraint(Sketcher.Constraint("Coincident", 1, 2, 2, 1))
sketch18.addConstraint(Sketcher.Constraint("Coincident", 2, 2, 3, 1))
sketch18.addConstraint(Sketcher.Constraint("Coincident", 3, 2, 0, 1))
sketch18.addConstraint(Sketcher.Constraint("Vertical", 0))
sketch18.addConstraint(Sketcher.Constraint("Horizontal", 1))
sketch18.addConstraint(Sketcher.Constraint("Vertical", 2))
sketch18.addConstraint(Sketcher.Constraint("Horizontal", 3))
sketch18.addConstraint(Sketcher.Constraint("DistanceY", 0, 2, 0, 1, Q("5 mm")))
sketch18.addConstraint(Sketcher.Constraint("DistanceX", 1, 1, 1, 2, Q("1.71 mm")))
sketch18.addConstraint(Sketcher.Constraint("DistanceY", -1, 1, 0, 2, Q("80.594891 mm")))
sketch18.addConstraint(Sketcher.Constraint("DistanceX", 0, 2, -1, 1, Q("33.568043 mm")))
pad18 = body18.newObject("PartDesign::Pad", "Pad017")
pad18.Profile = sketch18
pad18.Length = 5
body19 = doc.addObject("PartDesign::Body", "Body018")

sketch19 = body19.newObject("Sketcher::SketchObject", "Sketch018")
sketch19.AttachmentSupport = (doc.getObject("XY_Plane018"), [""])
sketch19.MapMode = "FlatFace"
sketch19.addGeometry(Part.LineSegment(Vector(-35.3, 90.6, 0), Vector(-35.3, 85.6, 0)), False)
sketch19.addGeometry(Part.LineSegment(Vector(-35.3, 85.6, 0), Vector(-33.6, 85.6, 0)), False)
sketch19.addGeometry(Part.LineSegment(Vector(-33.6, 85.6, 0), Vector(-33.6, 90.6, 0)), False)
sketch19.addGeometry(Part.LineSegment(Vector(-33.6, 90.6, 0), Vector(-35.3, 90.6, 0)), False)
sketch19.addConstraint(Sketcher.Constraint("Coincident", 0, 2, 1, 1))
sketch19.addConstraint(Sketcher.Constraint("Coincident", 1, 2, 2, 1))
sketch19.addConstraint(Sketcher.Constraint("Coincident", 2, 2, 3, 1))
sketch19.addConstraint(Sketcher.Constraint("Coincident", 3, 2, 0, 1))
sketch19.addConstraint(Sketcher.Constraint("Vertical", 0))
sketch19.addConstraint(Sketcher.Constraint("Horizontal", 1))
sketch19.addConstraint(Sketcher.Constraint("Vertical", 2))
sketch19.addConstraint(Sketcher.Constraint("Horizontal", 3))
sketch19.addConstraint(Sketcher.Constraint("DistanceY", 0, 2, 0, 1, Q("5 mm")))
sketch19.addConstraint(Sketcher.Constraint("DistanceX", 1, 1, 1, 2, Q("1.71 mm")))
sketch19.addConstraint(Sketcher.Constraint("DistanceY", -1, 1, 0, 2, Q("85.594891 mm")))
sketch19.addConstraint(Sketcher.Constraint("DistanceX", 0, 2, -1, 1, Q("35.278043 mm")))
pad19 = body19.newObject("PartDesign::Pad", "Pad018")
pad19.Profile = sketch19
pad19.Length = 5
body20 = doc.addObject("PartDesign::Body", "Body019")

sketch20 = body20.newObject("Sketcher::SketchObject", "Sketch019")
sketch20.AttachmentSupport = (doc.getObject("XY_Plane019"), [""])
sketch20.MapMode = "FlatFace"
sketch20.addGeometry(Part.LineSegment(Vector(-37, 95.6, 0), Vector(-37, 90.6, 0)), False)
sketch20.addGeometry(Part.LineSegment(Vector(-37, 90.6, 0), Vector(-35.3, 90.6, 0)), False)
sketch20.addGeometry(Part.LineSegment(Vector(-35.3, 90.6, 0), Vector(-35.3, 95.6, 0)), False)
sketch20.addGeometry(Part.LineSegment(Vector(-35.3, 95.6, 0), Vector(-37, 95.6, 0)), False)
sketch20.addConstraint(Sketcher.Constraint("Coincident", 0, 2, 1, 1))
sketch20.addConstraint(Sketcher.Constraint("Coincident", 1, 2, 2, 1))
sketch20.addConstraint(Sketcher.Constraint("Coincident", 2, 2, 3, 1))
sketch20.addConstraint(Sketcher.Constraint("Coincident", 3, 2, 0, 1))
sketch20.addConstraint(Sketcher.Constraint("Vertical", 0))
sketch20.addConstraint(Sketcher.Constraint("Horizontal", 1))
sketch20.addConstraint(Sketcher.Constraint("Vertical", 2))
sketch20.addConstraint(Sketcher.Constraint("Horizontal", 3))
sketch20.addConstraint(Sketcher.Constraint("DistanceY", 0, 2, 0, 1, Q("5 mm")))
sketch20.addConstraint(Sketcher.Constraint("DistanceX", 1, 1, 1, 2, Q("1.71 mm")))
sketch20.addConstraint(Sketcher.Constraint("DistanceY", -1, 1, 0, 2, Q("90.594891 mm")))
sketch20.addConstraint(Sketcher.Constraint("DistanceX", 0, 2, -1, 1, Q("36.988043 mm")))
pad20 = body20.newObject("PartDesign::Pad", "Pad019")
pad20.Profile = sketch20
pad20.Length = 5
body21 = doc.addObject("PartDesign::Body", "Body020")

sketch21 = body21.newObject("Sketcher::SketchObject", "Sketch020")
sketch21.AttachmentSupport = (doc.getObject("XY_Plane020"), [""])
sketch21.MapMode = "FlatFace"
sketch21.AttachmentOffset = App.Placement(Vector(0, 0, 5), App.Rotation())
sketch21.addGeometry(Part.LineSegment(Vector(-37, 90.6, 0), Vector(-4.5, -4.4, 0)), False)
sketch21.addGeometry(Part.LineSegment(Vector(-4.5, -4.4, 0), Vector(-2.8, -4.4, 0)), False)
sketch21.addGeometry(Part.LineSegment(Vector(-2.8, -4.4, 0), Vector(-2.8, 0.6, 0)), False)
sketch21.addGeometry(Part.LineSegment(Vector(-2.8, 0.6, 0), Vector(-35.3, 95.6, 0)), False)
sketch21.addGeometry(Part.LineSegment(Vector(-35.3, 95.6, 0), Vector(-37, 95.6, 0)), False)
sketch21.addGeometry(Part.LineSegment(Vector(-37, 95.6, 0), Vector(-37, 90.6, 0)), False)
sketch21.addConstraint(Sketcher.Constraint("Coincident", 0, 2, 1, 1))
sketch21.addConstraint(Sketcher.Constraint("Coincident", 1, 2, 2, 1))
sketch21.addConstraint(Sketcher.Constraint("Coincident", 2, 2, 3, 1))
sketch21.addConstraint(Sketcher.Constraint("Coincident", 3, 2, 4, 1))
sketch21.addConstraint(Sketcher.Constraint("Coincident", 4, 2, 5, 1))
sketch21.addConstraint(Sketcher.Constraint("Coincident", 5, 2, 0, 1))
sketch21.addConstraint(Sketcher.Constraint("Horizontal", 1))
sketch21.addConstraint(Sketcher.Constraint("Vertical", 2))
sketch21.addConstraint(Sketcher.Constraint("Horizontal", 4))
sketch21.addConstraint(Sketcher.Constraint("Vertical", 5))
sketch21.addConstraint(Sketcher.Constraint("Parallel", 0, 3))
sketch21.addConstraint(Sketcher.Constraint("Equal", 1, 4))
sketch21.addConstraint(Sketcher.Constraint("DistanceY", 2, 1, 2, 2, Q("5 mm")))
sketch21.addConstraint(Sketcher.Constraint("DistanceY", 2, 2, 3, 2, Q("95 mm")))
sketch21.addConstraint(Sketcher.Constraint("DistanceX", 1, 1, 1, 2, Q("1.71 mm")))
sketch21.addConstraint(Sketcher.Constraint("DistanceX", 4, 2, 2, 2, Q("34.2 mm")))
sketch21.addConstraint(Sketcher.Constraint("DistanceY", 0, 2, -1, 1, Q("4.405109 mm")))
sketch21.addConstraint(Sketcher.Constraint("DistanceX", 0, 2, -1, 1, Q("4.498043 mm")))
pad21 = body21.newObject("PartDesign::Pad", "Pad020")
pad21.Profile = sketch21
pad21.Length = 1

doc.recompute()
